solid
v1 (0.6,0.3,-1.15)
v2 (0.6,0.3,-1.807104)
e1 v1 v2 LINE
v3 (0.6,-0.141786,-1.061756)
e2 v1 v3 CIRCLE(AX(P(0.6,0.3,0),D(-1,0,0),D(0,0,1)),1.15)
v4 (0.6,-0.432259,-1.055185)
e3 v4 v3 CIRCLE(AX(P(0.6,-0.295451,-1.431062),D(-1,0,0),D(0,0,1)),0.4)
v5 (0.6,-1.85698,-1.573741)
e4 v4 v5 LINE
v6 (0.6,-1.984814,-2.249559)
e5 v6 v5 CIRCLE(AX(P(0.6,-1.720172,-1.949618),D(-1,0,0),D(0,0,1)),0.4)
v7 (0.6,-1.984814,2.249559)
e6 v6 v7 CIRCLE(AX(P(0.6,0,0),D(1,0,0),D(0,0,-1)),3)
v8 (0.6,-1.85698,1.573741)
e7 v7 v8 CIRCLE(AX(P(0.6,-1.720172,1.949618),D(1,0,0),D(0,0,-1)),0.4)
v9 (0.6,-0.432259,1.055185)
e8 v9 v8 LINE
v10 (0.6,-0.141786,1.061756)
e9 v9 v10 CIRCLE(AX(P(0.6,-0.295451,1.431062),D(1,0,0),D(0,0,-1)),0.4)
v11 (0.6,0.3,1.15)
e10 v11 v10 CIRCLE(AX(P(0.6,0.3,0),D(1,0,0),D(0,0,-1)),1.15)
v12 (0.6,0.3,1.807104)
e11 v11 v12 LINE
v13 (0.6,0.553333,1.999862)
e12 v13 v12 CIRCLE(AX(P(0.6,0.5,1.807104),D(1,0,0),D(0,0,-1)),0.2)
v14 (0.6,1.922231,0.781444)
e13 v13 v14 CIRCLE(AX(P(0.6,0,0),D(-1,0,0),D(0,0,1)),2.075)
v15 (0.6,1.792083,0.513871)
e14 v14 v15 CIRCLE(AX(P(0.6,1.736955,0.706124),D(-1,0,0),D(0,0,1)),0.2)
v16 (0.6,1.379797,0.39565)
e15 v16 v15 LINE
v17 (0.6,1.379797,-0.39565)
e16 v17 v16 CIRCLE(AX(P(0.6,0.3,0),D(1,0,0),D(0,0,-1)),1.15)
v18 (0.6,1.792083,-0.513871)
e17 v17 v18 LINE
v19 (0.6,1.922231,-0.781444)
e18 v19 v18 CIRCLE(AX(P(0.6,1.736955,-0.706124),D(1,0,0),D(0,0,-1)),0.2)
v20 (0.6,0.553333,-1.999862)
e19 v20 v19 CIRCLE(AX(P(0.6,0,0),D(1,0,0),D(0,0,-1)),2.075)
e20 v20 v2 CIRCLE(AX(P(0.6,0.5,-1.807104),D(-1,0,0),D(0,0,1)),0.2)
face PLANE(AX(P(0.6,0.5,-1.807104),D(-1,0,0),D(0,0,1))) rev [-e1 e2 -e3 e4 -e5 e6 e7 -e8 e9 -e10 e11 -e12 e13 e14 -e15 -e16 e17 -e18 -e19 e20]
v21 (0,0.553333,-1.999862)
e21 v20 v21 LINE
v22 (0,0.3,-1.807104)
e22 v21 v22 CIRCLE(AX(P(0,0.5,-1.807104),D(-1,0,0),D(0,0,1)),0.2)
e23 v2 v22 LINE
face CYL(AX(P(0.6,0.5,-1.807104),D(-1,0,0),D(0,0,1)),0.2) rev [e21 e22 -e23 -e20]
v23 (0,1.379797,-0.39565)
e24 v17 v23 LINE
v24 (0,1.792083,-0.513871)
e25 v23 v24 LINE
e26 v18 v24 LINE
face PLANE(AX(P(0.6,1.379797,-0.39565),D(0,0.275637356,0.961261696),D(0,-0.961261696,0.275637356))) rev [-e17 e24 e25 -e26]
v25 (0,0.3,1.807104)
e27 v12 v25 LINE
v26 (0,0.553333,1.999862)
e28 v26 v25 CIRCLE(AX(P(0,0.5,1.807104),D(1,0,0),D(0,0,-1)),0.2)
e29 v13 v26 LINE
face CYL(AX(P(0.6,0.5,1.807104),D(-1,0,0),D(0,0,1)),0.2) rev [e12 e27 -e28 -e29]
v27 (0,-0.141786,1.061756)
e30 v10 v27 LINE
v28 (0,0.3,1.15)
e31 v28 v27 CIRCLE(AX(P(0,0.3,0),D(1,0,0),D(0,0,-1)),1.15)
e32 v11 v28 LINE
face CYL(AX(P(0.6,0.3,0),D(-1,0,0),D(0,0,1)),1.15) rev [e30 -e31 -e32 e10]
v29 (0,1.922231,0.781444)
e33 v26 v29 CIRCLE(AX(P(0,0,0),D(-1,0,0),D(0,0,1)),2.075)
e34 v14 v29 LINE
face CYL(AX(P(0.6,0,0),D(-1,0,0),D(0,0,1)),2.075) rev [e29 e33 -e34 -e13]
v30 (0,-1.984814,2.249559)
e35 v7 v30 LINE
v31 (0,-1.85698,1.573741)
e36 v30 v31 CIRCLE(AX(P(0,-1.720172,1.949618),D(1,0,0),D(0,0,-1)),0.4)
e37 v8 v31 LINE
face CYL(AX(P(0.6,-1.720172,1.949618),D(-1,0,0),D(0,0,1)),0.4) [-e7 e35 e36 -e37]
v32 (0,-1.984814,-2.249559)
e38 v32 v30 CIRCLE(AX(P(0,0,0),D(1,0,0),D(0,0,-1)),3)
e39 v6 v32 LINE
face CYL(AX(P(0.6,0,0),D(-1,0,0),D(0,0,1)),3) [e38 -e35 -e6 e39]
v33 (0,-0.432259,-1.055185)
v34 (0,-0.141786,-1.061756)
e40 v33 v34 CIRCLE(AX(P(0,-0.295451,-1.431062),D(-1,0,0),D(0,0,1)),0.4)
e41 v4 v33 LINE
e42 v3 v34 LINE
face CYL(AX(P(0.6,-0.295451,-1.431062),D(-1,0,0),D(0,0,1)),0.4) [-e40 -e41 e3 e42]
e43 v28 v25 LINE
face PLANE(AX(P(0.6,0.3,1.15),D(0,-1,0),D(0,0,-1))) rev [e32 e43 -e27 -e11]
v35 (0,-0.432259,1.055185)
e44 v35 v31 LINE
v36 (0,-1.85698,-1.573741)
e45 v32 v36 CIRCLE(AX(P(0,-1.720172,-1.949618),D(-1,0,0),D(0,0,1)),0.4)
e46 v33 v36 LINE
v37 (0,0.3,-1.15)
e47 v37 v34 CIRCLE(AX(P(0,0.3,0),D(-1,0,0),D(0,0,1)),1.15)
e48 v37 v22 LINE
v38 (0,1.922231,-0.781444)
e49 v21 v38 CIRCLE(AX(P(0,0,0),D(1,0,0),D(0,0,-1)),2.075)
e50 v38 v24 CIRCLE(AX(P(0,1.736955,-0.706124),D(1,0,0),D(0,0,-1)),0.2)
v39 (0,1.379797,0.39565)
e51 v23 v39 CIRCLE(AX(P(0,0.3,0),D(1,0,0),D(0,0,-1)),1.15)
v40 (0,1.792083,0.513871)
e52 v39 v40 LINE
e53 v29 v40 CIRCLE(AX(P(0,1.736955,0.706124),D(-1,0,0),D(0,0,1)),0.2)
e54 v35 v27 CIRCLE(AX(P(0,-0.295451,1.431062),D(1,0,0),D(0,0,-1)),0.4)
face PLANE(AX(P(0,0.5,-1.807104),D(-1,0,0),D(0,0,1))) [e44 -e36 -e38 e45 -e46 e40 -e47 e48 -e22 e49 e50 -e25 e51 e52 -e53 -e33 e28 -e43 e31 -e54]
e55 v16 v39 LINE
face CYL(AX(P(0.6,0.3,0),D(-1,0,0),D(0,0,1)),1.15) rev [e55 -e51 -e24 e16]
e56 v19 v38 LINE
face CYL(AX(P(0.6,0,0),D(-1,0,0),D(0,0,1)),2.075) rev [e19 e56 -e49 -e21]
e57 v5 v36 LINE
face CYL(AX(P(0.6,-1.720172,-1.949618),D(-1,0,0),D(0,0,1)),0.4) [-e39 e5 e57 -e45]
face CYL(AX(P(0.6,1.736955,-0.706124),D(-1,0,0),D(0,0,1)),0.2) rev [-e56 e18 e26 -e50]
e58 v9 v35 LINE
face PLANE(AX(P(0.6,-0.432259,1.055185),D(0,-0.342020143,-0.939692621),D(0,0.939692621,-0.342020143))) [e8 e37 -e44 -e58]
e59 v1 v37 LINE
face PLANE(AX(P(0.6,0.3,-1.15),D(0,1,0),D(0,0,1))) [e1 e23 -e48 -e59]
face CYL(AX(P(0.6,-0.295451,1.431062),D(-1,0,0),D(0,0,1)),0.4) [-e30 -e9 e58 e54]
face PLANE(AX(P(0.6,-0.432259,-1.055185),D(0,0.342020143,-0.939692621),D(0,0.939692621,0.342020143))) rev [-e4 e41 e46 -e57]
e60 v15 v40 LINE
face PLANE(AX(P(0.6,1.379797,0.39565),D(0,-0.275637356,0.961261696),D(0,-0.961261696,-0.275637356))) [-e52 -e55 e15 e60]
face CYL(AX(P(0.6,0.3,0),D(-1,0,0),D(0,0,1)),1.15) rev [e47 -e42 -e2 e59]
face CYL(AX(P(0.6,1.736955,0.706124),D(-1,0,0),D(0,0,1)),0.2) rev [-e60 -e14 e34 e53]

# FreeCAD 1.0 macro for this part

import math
import FreeCAD as App
import Part
import Sketcher

V = App.Vector
Q = App.Units.Quantity

doc = App.newDocument("Part")
params = doc.addObject("Spreadsheet::Sheet", "Params")
for row, (alias, value) in enumerate([
    ("sketch1_radius", "3 mm"),
    ("sketch1_radius2", "0.2 mm"),
    ("sketch1_radius3", "0.4 mm"),
    ("sketch1_radius4", "1.15 mm"),
    ("pad1_length", "0.6 mm"),
], start=1):
    params.set(f"A{row}", alias)
    params.set(f"B{row}", "=" + value)
    params.setAlias(f"B{row}", alias)

body = doc.addObject("PartDesign::Body", "Body")

# Sketch on YZ plane
sketch1 = body.newObject("Sketcher::SketchObject", "Sketch")
sketch1.AttachmentSupport = (doc.getObject("YZ_Plane"), [""])
sketch1.MapMode = "FlatFace"
sketch1.addGeometry(Part.LineSegment(V(1.38, -0.4, 0), V(1.79, -0.51, 0)), False)
sketch1.addGeometry(Part.ArcOfCircle(Part.Circle(V(1.74, -0.71, 0), V(0, 0, 1), 0.2), math.radians(-22), math.radians(74)), False)
sketch1.addGeometry(Part.ArcOfCircle(Part.Circle(V(0, 0, 0), V(0, 0, 1), 2.08), math.radians(-75), math.radians(-22)), False)
sketch1.addGeometry(Part.ArcOfCircle(Part.Circle(V(0.5, -1.81, 0), V(0, 0, 1), 0.2), math.radians(180), math.radians(285)), False)
sketch1.addGeometry(Part.LineSegment(V(0.3, -1.81, 0), V(0.3, -1.15, 0)), False)
sketch1.addGeometry(Part.ArcOfCircle(Part.Circle(V(0.3, 0, 0), V(0, 0, 1), 1.15), math.radians(-113), math.radians(-90)), False)
sketch1.addGeometry(Part.ArcOfCircle(Part.Circle(V(-0.3, -1.43, 0), V(0, 0, 1), 0.4), math.radians(67), math.radians(110)), False)
sketch1.addGeometry(Part.LineSegment(V(-0.43, -1.06, 0), V(-1.86, -1.57, 0)), False)
sketch1.addGeometry(Part.ArcOfCircle(Part.Circle(V(-1.72, -1.95, 0), V(0, 0, 1), 0.4), math.radians(110), math.radians(229)), False)
sketch1.addGeometry(Part.ArcOfCircle(Part.Circle(V(0, 0, 0), V(0, 0, 1), 3), math.radians(-131), math.radians(131)), False)
sketch1.addGeometry(Part.ArcOfCircle(Part.Circle(V(-1.72, 1.95, 0), V(0, 0, 1), 0.4), math.radians(131), math.radians(250)), False)
sketch1.addGeometry(Part.LineSegment(V(-1.86, 1.57, 0), V(-0.43, 1.06, 0)), False)
sketch1.addGeometry(Part.ArcOfCircle(Part.Circle(V(-0.3, 1.43, 0), V(0, 0, 1), 0.4), math.radians(-110), math.radians(-67)), False)
sketch1.addGeometry(Part.ArcOfCircle(Part.Circle(V(0.3, 0, 0), V(0, 0, 1), 1.15), math.radians(90), math.radians(113)), False)
sketch1.addGeometry(Part.LineSegment(V(0.3, 1.15, 0), V(0.3, 1.81, 0)), False)
sketch1.addGeometry(Part.ArcOfCircle(Part.Circle(V(0.5, 1.81, 0), V(0, 0, 1), 0.2), math.radians(75), math.radians(180)), False)
sketch1.addGeometry(Part.ArcOfCircle(Part.Circle(V(0, 0, 0), V(0, 0, 1), 2.08), math.radians(22), math.radians(75)), False)
sketch1.addGeometry(Part.ArcOfCircle(Part.Circle(V(1.74, 0.71, 0), V(0, 0, 1), 0.2), math.radians(-74), math.radians(22)), False)
sketch1.addGeometry(Part.LineSegment(V(1.79, 0.51, 0), V(1.38, 0.4, 0)), False)
sketch1.addGeometry(Part.ArcOfCircle(Part.Circle(V(0.3, 0, 0), V(0, 0, 1), 1.15), math.radians(-20), math.radians(20)), False)
sketch1.addConstraint(Sketcher.Constraint("Tangent", 0, 2, 1, 2))
sketch1.addConstraint(Sketcher.Constraint("Tangent", 1, 1, 2, 2))
sketch1.addConstraint(Sketcher.Constraint("Tangent", 2, 1, 3, 2))
sketch1.addConstraint(Sketcher.Constraint("Tangent", 3, 1, 4, 1))
sketch1.addConstraint(Sketcher.Constraint("Coincident", 4, 2, 5, 2))
sketch1.addConstraint(Sketcher.Constraint("Tangent", 5, 1, 6, 1))
sketch1.addConstraint(Sketcher.Constraint("Tangent", 6, 2, 7, 1))
sketch1.addConstraint(Sketcher.Constraint("Tangent", 7, 2, 8, 1))
sketch1.addConstraint(Sketcher.Constraint("Tangent", 8, 2, 9, 1))
sketch1.addConstraint(Sketcher.Constraint("Tangent", 9, 2, 10, 1))
sketch1.addConstraint(Sketcher.Constraint("Tangent", 10, 2, 11, 1))
sketch1.addConstraint(Sketcher.Constraint("Tangent", 11, 2, 12, 1))
sketch1.addConstraint(Sketcher.Constraint("Tangent", 12, 2, 13, 2))
sketch1.addConstraint(Sketcher.Constraint("Coincident", 13, 1, 14, 1))
sketch1.addConstraint(Sketcher.Constraint("Tangent", 14, 2, 15, 2))
sketch1.addConstraint(Sketcher.Constraint("Tangent", 15, 1, 16, 2))
sketch1.addConstraint(Sketcher.Constraint("Tangent", 16, 1, 17, 2))
sketch1.addConstraint(Sketcher.Constraint("Tangent", 17, 1, 18, 1))
sketch1.addConstraint(Sketcher.Constraint("Coincident", 18, 2, 19, 2))
sketch1.addConstraint(Sketcher.Constraint("Coincident", 19, 1, 0, 1))
sketch1.addConstraint(Sketcher.Constraint("Vertical", 4))
sketch1.addConstraint(Sketcher.Constraint("Vertical", 14))
sketch1.addConstraint(Sketcher.Constraint("Coincident", 2, 3, -1, 1))
sketch1.addConstraint(Sketcher.Constraint("Coincident", 9, 3, -1, 1))
sketch1.addConstraint(Sketcher.Constraint("Coincident", 16, 3, -1, 1))
sketch1.addConstraint(Sketcher.Constraint("Coincident", 13, 3, 5, 3))
sketch1.addConstraint(Sketcher.Constraint("Coincident", 19, 3, 5, 3))
sketch1.addConstraint(Sketcher.Constraint("Equal", 1, 3))
sketch1.addConstraint(Sketcher.Constraint("Equal", 6, 8))
sketch1.addConstraint(Sketcher.Constraint("Equal", 8, 10))
sketch1.addConstraint(Sketcher.Constraint("Equal", 10, 12))
sketch1.addConstraint(Sketcher.Constraint("Equal", 5, 13))
sketch1.addConstraint(Sketcher.Constraint("Equal", 3, 15))
sketch1.addConstraint(Sketcher.Constraint("Equal", 2, 16))
sketch1.addConstraint(Sketcher.Constraint("Equal", 15, 17))
sketch1.addConstraint(Sketcher.Constraint("Equal", 13, 19))
sketch1.addConstraint(Sketcher.Constraint("Symmetric", 6, 3, 12, 3, -1))
sketch1.addConstraint(Sketcher.Constraint("Symmetric", 0, 2, 17, 1, -1))
sketch1.addConstraint(Sketcher.Constraint("Vertical", 8, 3, 10, 3))
sketch1.addConstraint(Sketcher.Constraint("Vertical", 3, 3, 15, 3))
sketch1.addConstraint(Sketcher.Constraint("Vertical", 19, 3, 3, 1))
sketch1.addConstraint(Sketcher.Constraint("Radius", 9, 3.0))
sketch1.addConstraint(Sketcher.Constraint("Radius", 1, 0.2))
sketch1.addConstraint(Sketcher.Constraint("Radius", 6, 0.4))
sketch1.addConstraint(Sketcher.Constraint("Angle", 0, Q("-16 deg")))
sketch1.addConstraint(Sketcher.Constraint("Angle", 7, Q("-160 deg")))
sketch1.addConstraint(Sketcher.Constraint("Radius", 5, 1.15))
sketch1.addConstraint(Sketcher.Constraint("Radius", 2, 2.075))
sketch1.addConstraint(Sketcher.Constraint("DistanceX", -1, 1, 3, 3, 0.5))
sketch1.addConstraint(Sketcher.Constraint("Distance", 0, 0.428901))
sketch1.addConstraint(Sketcher.Constraint("DistanceY", 2, 1, 6, 3, 0.5688))
sketch1.setExpression("Constraints[41]", "Params.sketch1_radius")
sketch1.setExpression("Constraints[42]", "Params.sketch1_radius2")
sketch1.setExpression("Constraints[43]", "Params.sketch1_radius3")
sketch1.setExpression("Constraints[46]", "Params.sketch1_radius4")
pad1 = body.newObject("PartDesign::Pad", "Pad")
pad1.Profile = sketch1
pad1.setExpression("Length", "Params.pad1_length")

doc.recompute()
